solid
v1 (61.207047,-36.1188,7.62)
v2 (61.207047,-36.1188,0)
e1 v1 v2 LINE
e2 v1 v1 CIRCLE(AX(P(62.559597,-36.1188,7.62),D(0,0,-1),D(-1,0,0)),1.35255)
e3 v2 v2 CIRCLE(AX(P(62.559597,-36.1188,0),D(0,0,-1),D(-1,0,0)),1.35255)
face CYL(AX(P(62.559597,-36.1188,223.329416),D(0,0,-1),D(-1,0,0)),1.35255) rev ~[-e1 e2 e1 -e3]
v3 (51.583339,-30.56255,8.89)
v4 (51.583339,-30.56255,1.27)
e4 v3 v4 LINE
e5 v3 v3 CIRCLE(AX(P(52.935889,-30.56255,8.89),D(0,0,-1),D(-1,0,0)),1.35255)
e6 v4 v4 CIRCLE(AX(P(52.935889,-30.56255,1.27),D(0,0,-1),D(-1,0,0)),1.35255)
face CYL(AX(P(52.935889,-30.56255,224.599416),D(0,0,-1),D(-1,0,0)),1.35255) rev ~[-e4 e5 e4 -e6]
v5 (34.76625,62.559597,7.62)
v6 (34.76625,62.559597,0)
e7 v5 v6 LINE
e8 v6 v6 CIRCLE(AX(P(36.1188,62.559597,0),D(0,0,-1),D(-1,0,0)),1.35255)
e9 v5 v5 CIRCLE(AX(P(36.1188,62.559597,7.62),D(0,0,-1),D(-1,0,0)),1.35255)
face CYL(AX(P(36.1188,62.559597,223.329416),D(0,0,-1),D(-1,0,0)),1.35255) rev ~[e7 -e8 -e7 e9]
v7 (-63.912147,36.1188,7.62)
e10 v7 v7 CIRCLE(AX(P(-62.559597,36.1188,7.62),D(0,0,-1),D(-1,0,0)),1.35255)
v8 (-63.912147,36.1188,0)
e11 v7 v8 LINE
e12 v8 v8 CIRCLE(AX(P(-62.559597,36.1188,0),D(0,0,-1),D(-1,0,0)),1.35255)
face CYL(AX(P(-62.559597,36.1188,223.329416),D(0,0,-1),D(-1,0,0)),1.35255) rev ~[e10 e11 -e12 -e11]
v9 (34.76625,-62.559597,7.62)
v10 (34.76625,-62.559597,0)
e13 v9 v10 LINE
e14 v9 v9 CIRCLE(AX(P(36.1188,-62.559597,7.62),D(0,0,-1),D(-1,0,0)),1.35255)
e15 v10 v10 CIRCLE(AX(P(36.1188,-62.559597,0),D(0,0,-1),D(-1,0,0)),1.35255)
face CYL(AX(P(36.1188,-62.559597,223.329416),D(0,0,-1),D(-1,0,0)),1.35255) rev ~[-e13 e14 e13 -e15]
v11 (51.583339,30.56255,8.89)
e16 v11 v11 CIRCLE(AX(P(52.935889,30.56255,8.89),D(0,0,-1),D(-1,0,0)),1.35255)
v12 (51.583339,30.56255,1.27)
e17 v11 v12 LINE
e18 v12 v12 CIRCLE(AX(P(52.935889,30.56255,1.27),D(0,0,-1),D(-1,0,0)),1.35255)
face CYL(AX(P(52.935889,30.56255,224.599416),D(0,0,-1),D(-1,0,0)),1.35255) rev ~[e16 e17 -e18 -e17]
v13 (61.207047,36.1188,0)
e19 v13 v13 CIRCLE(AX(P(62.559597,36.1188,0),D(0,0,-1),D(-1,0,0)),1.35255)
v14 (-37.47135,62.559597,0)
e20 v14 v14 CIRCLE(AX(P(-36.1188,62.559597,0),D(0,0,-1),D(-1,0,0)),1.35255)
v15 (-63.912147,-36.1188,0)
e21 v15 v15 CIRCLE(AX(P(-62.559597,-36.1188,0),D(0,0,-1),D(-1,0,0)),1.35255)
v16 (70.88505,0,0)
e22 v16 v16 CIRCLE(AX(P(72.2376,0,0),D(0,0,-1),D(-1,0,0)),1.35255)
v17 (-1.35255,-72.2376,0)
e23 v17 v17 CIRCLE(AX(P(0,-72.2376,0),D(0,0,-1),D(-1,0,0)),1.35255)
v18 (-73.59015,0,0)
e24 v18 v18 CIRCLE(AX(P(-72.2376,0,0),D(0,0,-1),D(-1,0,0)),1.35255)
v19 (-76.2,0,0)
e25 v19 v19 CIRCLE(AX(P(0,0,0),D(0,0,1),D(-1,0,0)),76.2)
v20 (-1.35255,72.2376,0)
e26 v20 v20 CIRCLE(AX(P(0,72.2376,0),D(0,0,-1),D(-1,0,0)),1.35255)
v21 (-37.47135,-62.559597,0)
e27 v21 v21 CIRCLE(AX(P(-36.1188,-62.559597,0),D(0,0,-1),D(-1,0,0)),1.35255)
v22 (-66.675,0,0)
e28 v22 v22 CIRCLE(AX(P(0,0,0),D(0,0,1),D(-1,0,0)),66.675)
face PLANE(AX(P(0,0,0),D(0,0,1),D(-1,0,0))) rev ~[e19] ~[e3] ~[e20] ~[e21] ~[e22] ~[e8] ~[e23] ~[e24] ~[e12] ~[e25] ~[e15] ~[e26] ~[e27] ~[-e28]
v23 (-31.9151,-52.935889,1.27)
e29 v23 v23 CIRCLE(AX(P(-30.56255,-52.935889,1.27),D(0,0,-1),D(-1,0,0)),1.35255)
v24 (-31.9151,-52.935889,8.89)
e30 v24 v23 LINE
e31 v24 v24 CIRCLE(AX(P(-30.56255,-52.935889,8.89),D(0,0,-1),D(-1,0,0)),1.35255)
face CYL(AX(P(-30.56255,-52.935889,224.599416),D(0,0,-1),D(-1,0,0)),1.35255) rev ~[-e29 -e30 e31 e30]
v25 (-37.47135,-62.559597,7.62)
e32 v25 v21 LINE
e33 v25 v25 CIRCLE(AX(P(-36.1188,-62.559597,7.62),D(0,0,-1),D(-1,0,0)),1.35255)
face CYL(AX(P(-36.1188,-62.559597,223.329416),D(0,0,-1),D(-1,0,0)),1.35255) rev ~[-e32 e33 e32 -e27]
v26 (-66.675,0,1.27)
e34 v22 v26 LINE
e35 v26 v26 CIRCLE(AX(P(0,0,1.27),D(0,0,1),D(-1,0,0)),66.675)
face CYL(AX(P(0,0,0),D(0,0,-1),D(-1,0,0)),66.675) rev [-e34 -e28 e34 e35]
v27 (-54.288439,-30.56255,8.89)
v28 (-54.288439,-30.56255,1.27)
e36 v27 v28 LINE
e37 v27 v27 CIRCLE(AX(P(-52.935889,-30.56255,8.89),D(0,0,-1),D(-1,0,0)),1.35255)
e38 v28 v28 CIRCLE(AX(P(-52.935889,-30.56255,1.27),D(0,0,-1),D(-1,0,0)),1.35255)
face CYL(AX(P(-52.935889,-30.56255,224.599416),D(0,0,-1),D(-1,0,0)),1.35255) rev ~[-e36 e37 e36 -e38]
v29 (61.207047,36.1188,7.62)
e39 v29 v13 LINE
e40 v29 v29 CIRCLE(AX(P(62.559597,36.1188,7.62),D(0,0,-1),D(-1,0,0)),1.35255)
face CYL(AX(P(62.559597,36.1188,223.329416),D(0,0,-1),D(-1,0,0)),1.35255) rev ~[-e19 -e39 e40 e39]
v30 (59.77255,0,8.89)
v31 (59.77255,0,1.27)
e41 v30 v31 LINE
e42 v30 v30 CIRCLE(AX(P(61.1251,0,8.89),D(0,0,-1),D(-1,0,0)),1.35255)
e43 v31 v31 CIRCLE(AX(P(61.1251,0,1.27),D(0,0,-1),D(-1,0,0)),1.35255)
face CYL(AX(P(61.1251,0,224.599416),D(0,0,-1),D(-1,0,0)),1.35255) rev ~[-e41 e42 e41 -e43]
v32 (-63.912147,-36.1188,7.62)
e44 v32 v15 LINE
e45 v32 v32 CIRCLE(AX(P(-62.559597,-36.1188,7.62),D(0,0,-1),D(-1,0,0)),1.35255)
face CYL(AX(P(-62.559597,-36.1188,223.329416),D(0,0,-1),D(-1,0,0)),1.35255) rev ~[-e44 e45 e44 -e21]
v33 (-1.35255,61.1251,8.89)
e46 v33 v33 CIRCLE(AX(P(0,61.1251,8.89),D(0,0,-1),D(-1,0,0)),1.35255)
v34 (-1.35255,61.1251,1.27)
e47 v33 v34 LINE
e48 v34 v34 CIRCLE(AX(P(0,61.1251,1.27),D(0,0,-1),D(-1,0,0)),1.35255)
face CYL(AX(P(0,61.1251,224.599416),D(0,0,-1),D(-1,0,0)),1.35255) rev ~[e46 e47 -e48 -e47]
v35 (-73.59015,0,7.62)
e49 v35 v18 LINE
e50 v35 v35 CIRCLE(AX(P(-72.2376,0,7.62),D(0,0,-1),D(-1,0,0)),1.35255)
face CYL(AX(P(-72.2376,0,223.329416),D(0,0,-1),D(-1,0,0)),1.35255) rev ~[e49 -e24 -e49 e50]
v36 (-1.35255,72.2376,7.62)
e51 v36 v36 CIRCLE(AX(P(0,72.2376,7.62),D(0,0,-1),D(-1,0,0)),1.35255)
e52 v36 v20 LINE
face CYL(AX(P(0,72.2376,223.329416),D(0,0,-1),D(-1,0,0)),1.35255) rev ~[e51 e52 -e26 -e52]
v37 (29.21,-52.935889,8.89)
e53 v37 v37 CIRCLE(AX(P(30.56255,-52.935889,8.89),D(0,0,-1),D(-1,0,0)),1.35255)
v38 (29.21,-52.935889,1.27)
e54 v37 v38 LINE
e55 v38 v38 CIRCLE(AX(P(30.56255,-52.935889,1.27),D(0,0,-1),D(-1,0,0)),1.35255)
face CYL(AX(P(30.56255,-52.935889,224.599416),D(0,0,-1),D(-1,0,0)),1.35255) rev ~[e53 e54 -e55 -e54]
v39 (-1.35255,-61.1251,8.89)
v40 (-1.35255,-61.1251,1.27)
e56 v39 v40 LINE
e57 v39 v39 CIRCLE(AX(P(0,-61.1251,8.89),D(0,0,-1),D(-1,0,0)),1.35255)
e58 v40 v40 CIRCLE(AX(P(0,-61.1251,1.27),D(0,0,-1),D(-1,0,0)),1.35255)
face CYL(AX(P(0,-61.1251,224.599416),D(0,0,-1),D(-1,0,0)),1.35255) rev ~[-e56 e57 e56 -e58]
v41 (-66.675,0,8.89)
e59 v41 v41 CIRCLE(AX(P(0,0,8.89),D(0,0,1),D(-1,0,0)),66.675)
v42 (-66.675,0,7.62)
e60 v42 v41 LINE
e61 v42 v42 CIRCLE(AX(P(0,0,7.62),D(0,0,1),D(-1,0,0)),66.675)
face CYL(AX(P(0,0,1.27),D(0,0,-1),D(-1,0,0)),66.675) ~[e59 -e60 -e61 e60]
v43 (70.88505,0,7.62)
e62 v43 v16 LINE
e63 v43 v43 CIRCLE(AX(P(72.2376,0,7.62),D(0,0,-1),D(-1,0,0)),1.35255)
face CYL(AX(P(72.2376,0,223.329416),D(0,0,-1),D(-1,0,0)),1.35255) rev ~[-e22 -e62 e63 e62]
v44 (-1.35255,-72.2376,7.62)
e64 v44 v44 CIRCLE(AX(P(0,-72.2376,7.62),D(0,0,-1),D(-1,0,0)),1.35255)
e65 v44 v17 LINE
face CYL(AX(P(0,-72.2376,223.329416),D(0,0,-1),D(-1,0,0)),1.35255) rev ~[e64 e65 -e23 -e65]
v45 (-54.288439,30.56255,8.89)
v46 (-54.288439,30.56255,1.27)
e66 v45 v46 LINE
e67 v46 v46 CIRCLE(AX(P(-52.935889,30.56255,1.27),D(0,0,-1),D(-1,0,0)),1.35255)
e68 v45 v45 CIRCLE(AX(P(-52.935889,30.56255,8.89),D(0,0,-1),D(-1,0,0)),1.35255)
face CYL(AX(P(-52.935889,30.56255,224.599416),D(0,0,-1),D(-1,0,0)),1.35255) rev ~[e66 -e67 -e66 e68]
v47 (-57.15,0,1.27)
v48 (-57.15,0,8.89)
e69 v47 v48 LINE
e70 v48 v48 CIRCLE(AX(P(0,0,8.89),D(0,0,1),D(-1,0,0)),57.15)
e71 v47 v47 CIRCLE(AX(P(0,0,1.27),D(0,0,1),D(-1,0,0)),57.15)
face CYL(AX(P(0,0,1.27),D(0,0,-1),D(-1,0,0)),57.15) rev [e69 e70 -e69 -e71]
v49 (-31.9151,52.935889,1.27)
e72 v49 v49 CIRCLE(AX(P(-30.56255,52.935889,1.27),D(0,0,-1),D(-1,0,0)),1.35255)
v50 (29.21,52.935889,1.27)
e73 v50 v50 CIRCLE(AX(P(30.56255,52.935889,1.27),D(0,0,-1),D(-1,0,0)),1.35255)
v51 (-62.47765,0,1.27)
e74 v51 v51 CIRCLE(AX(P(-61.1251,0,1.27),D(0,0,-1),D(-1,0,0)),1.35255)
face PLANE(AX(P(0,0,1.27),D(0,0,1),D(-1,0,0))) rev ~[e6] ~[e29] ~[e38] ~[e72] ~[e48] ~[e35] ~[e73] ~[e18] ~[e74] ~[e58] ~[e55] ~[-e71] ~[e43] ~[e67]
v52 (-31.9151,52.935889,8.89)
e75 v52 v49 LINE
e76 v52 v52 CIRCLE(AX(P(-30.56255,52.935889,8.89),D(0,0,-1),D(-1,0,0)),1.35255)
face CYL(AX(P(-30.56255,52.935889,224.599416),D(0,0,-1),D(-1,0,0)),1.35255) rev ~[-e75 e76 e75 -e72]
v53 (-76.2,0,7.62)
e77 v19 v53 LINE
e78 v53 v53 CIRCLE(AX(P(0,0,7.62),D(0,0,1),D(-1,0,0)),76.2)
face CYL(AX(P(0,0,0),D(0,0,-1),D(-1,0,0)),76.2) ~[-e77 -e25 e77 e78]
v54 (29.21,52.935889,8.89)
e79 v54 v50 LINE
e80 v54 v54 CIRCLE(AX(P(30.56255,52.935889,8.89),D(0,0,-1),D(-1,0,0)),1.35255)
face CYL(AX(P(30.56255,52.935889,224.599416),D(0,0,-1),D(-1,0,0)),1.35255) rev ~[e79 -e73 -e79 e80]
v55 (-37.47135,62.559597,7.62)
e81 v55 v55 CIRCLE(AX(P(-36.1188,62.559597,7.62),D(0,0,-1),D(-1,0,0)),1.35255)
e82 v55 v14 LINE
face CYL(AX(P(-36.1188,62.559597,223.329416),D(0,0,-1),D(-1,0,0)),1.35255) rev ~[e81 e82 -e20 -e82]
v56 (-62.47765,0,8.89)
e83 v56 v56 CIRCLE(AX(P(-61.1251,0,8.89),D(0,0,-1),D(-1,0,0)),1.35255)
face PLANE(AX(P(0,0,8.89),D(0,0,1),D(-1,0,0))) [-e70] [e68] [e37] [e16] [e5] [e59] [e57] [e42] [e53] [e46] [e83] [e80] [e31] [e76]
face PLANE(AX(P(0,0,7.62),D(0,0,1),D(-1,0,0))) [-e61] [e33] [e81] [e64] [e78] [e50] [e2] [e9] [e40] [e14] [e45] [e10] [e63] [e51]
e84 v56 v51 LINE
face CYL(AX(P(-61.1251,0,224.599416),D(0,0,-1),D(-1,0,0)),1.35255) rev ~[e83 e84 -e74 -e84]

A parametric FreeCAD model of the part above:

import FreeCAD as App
import Part
import Sketcher
from FreeCAD import Vector
Q = App.Units.Quantity

doc = App.newDocument("Part")
body = doc.addObject("PartDesign::Body", "Body")

# Sketch on XY plane
sketch1 = body.newObject("Sketcher::SketchObject", "Sketch")
sketch1.AttachmentSupport = (doc.getObject("XY_Plane"), [""])
sketch1.MapMode = "FlatFace"
sketch1.addGeometry(Part.Circle(Vector(0, 0, 0), Vector(0, 0, 1), 76), False)
sketch1.addGeometry(Part.Circle(Vector(0, 0, 0), Vector(0, 0, 1), 67), False)
sketch1.addConstraint(Sketcher.Constraint("Coincident", 0, 3, -1, 1))
sketch1.addConstraint(Sketcher.Constraint("Coincident", 1, 3, -1, 1))
sketch1.addConstraint(Sketcher.Constraint("Diameter", 0, Q("6 in")))
sketch1.addConstraint(Sketcher.Constraint("Diameter", 1, Q("5.25 in")))
pad1 = body.newObject("PartDesign::Pad", "Pad")
pad1.Profile = sketch1
pad1.Length = Q("0.3 in")

# Sketch on XY plane
sketch2 = body.newObject("Sketcher::SketchObject", "Sketch001")
sketch2.AttachmentSupport = (doc.getObject("XY_Plane"), [""])
sketch2.MapMode = "FlatFace"
sketch2.AttachmentOffset = App.Placement(Vector(0, 0, 0.05 * 25.4), App.Rotation())
sketch2.addGeometry(Part.Circle(Vector(0, 0, 0), Vector(0, 0, 1), 67), False)
sketch2.addGeometry(Part.Circle(Vector(0, 0, 0), Vector(0, 0, 1), 57), False)
sketch2.addConstraint(Sketcher.Constraint("Coincident", 0, 3, -1, 1))
sketch2.addConstraint(Sketcher.Constraint("Coincident", 1, 3, -1, 1))
sketch2.addConstraint(Sketcher.Constraint("Diameter", 1, Q("4.5 in")))
sketch2.addConstraint(Sketcher.Constraint("Diameter", 0, Q("5.25 in")))
pad2 = body.newObject("PartDesign::Pad", "Pad001")
pad2.Profile = sketch2
pad2.Length = Q("0.3 in")

# Sketch on XY plane
sketch3 = body.newObject("Sketcher::SketchObject", "Sketch002")
sketch3.AttachmentSupport = (doc.getObject("XY_Plane"), [""])
sketch3.MapMode = "FlatFace"
sketch3.AttachmentOffset = App.Placement(Vector(0, 0, 0.35 * 25.4), App.Rotation())
sketch3.addGeometry(Part.Circle(Vector(-30.6, 52.9, 0), Vector(0, 0, 1), 1.4), False)
sketch3.addGeometry(Part.Circle(Vector(-52.9, 30.6, 0), Vector(0, 0, 1), 1.4), False)
sketch3.addGeometry(Part.Circle(Vector(-61.1, 0, 0), Vector(0, 0, 1), 1.4), False)
sketch3.addGeometry(Part.Circle(Vector(-52.9, -30.6, 0), Vector(0, 0, 1), 1.4), False)
sketch3.addGeometry(Part.Circle(Vector(-30.6, -52.9, 0), Vector(0, 0, 1), 1.4), False)
sketch3.addGeometry(Part.Circle(Vector(0, -61.1, 0), Vector(0, 0, 1), 1.4), False)
sketch3.addGeometry(Part.Circle(Vector(30.6, -52.9, 0), Vector(0, 0, 1), 1.4), False)
sketch3.addGeometry(Part.Circle(Vector(52.9, -30.6, 0), Vector(0, 0, 1), 1.4), False)
sketch3.addGeometry(Part.Circle(Vector(61.1, 0, 0), Vector(0, 0, 1), 1.4), False)
sketch3.addGeometry(Part.Circle(Vector(52.9, 30.6, 0), Vector(0, 0, 1), 1.4), False)
sketch3.addGeometry(Part.Circle(Vector(30.6, 52.9, 0), Vector(0, 0, 1), 1.4), False)
sketch3.addGeometry(Part.Circle(Vector(0, 61.1, 0), Vector(0, 0, 1), 1.4), False)
sketch3.addConstraint(Sketcher.Constraint("Equal", 0, 1))
sketch3.addConstraint(Sketcher.Constraint("Equal", 1, 2))
sketch3.addConstraint(Sketcher.Constraint("Equal", 2, 3))
sketch3.addConstraint(Sketcher.Constraint("Equal", 3, 4))
sketch3.addConstraint(Sketcher.Constraint("Equal", 4, 5))
sketch3.addConstraint(Sketcher.Constraint("Equal", 5, 6))
sketch3.addConstraint(Sketcher.Constraint("Equal", 6, 7))
sketch3.addConstraint(Sketcher.Constraint("Equal", 7, 8))
sketch3.addConstraint(Sketcher.Constraint("Equal", 8, 9))
sketch3.addConstraint(Sketcher.Constraint("Equal", 9, 10))
sketch3.addConstraint(Sketcher.Constraint("Equal", 10, 11))
sketch3.addConstraint(Sketcher.Constraint("Symmetric", 0, 3, 6, 3, -1, 1))
sketch3.addConstraint(Sketcher.Constraint("Symmetric", 1, 3, 7, 3, -1, 1))
sketch3.addConstraint(Sketcher.Constraint("Symmetric", 2, 3, 8, 3, -1, 1))
sketch3.addConstraint(Sketcher.Constraint("Symmetric", 3, 3, 9, 3, -1, 1))
sketch3.addConstraint(Sketcher.Constraint("Symmetric", 4, 3, 10, 3, -1, 1))
sketch3.addConstraint(Sketcher.Constraint("Symmetric", 5, 3, 11, 3, -1, 1))
sketch3.addConstraint(Sketcher.Constraint("Symmetric", 4, 3, 6, 3, -2))
sketch3.addConstraint(Sketcher.Constraint("Symmetric", 3, 3, 7, 3, -2))
sketch3.addConstraint(Sketcher.Constraint("PointOnObject", 2, 3, -1))
sketch3.addConstraint(Sketcher.Constraint("PointOnObject", 5, 3, -2))
sketch3.addConstraint(Sketcher.Constraint("Diameter", 0, Q("0.1065 in")))
sketch3.addConstraint(Sketcher.Constraint("DistanceX", 2, 3, -1, 1, Q("2.4065 in")))
sketch3.addConstraint(Sketcher.Constraint("DistanceY", 5, 3, -1, 1, Q("2.4065 in")))
sketch3.addConstraint(Sketcher.Constraint("DistanceY", 3, 3, 1, 3, Q("2.4065 in")))
sketch3.addConstraint(Sketcher.Constraint("DistanceX", 4, 3, 6, 3, Q("2.4065 in")))
sketch3.addConstraint(Sketcher.Constraint("DistanceY", -1, 1, 0, 3, 52.935889))
sketch3.addConstraint(Sketcher.Constraint("DistanceX", 1, 3, -1, 1, 52.935889))
doc.recompute()
hole = body.newObject("PartDesign::Hole", "Hole")
hole.Profile = sketch3
hole.ThreadType = "None"
hole.Diameter = Q("0.1065 in")
hole.DepthType = "ThroughAll"

# Sketch on XY plane
sketch4 = body.newObject("Sketcher::SketchObject", "Sketch003")
sketch4.AttachmentSupport = (doc.getObject("XY_Plane"), [""])
sketch4.MapMode = "FlatFace"
sketch4.AttachmentOffset = App.Placement(Vector(0, 0, 0.3 * 25.4), App.Rotation())
sketch4.addGeometry(Part.Circle(Vector(0, 72.2, 0), Vector(0, 0, 1), 1.4), False)
sketch4.addGeometry(Part.Circle(Vector(-36.1, 62.6, 0), Vector(0, 0, 1), 1.4), False)
sketch4.addGeometry(Part.Circle(Vector(-62.6, 36.1, 0), Vector(0, 0, 1), 1.4), False)
sketch4.addGeometry(Part.Circle(Vector(-72.2, 0, 0), Vector(0, 0, 1), 1.4), False)
sketch4.addGeometry(Part.Circle(Vector(-62.6, -36.1, 0), Vector(0, 0, 1), 1.4), False)
sketch4.addGeometry(Part.Circle(Vector(-36.1, -62.6, 0), Vector(0, 0, 1), 1.4), False)
sketch4.addGeometry(Part.Circle(Vector(0, -72.2, 0), Vector(0, 0, 1), 1.4), False)
sketch4.addGeometry(Part.Circle(Vector(36.1, -62.6, 0), Vector(0, 0, 1), 1.4), False)
sketch4.addGeometry(Part.Circle(Vector(62.6, -36.1, 0), Vector(0, 0, 1), 1.4), False)
sketch4.addGeometry(Part.Circle(Vector(72.2, 0, 0), Vector(0, 0, 1), 1.4), False)
sketch4.addGeometry(Part.Circle(Vector(62.6, 36.1, 0), Vector(0, 0, 1), 1.4), False)
sketch4.addGeometry(Part.Circle(Vector(36.1, 62.6, 0), Vector(0, 0, 1), 1.4), False)
sketch4.addConstraint(Sketcher.Constraint("Equal", 0, 1))
sketch4.addConstraint(Sketcher.Constraint("Equal", 1, 2))
sketch4.addConstraint(Sketcher.Constraint("Equal", 2, 3))
sketch4.addConstraint(Sketcher.Constraint("Equal", 3, 4))
sketch4.addConstraint(Sketcher.Constraint("Equal", 4, 5))
sketch4.addConstraint(Sketcher.Constraint("Equal", 5, 6))
sketch4.addConstraint(Sketcher.Constraint("Equal", 6, 7))
sketch4.addConstraint(Sketcher.Constraint("Equal", 7, 8))
sketch4.addConstraint(Sketcher.Constraint("Equal", 8, 9))
sketch4.addConstraint(Sketcher.Constraint("Equal", 9, 10))
sketch4.addConstraint(Sketcher.Constraint("Equal", 10, 11))
sketch4.addConstraint(Sketcher.Constraint("Symmetric", 0, 3, 6, 3, -1, 1))
sketch4.addConstraint(Sketcher.Constraint("Symmetric", 1, 3, 7, 3, -1, 1))
sketch4.addConstraint(Sketcher.Constraint("Symmetric", 2, 3, 8, 3, -1, 1))
sketch4.addConstraint(Sketcher.Constraint("Symmetric", 3, 3, 9, 3, -1, 1))
sketch4.addConstraint(Sketcher.Constraint("Symmetric", 4, 3, 10, 3, -1, 1))
sketch4.addConstraint(Sketcher.Constraint("Symmetric", 5, 3, 11, 3, -1, 1))
sketch4.addConstraint(Sketcher.Constraint("Symmetric", 5, 3, 7, 3, -2))
sketch4.addConstraint(Sketcher.Constraint("Symmetric", 4, 3, 8, 3, -2))
sketch4.addConstraint(Sketcher.Constraint("PointOnObject", 0, 3, -2))
sketch4.addConstraint(Sketcher.Constraint("PointOnObject", 3, 3, -1))
sketch4.addConstraint(Sketcher.Constraint("Diameter", 0, Q("0.1065 in")))
sketch4.addConstraint(Sketcher.Constraint("DistanceY", -1, 1, 0, 3, Q("2.844 in")))
sketch4.addConstraint(Sketcher.Constraint("DistanceX", 1, 3, -1, 1, Q("1.422 in")))
sketch4.addConstraint(Sketcher.Constraint("DistanceY", -1, 1, 2, 3, Q("1.422 in")))
sketch4.addConstraint(Sketcher.Constraint("DistanceX", 3, 3, -1, 1, Q("2.844 in")))
sketch4.addConstraint(Sketcher.Constraint("DistanceY", -1, 1, 1, 3, 62.559597))
sketch4.addConstraint(Sketcher.Constraint("DistanceX", 2, 3, -1, 1, 62.559597))
doc.recompute()
hole2 = body.newObject("PartDesign::Hole", "Hole001")
hole2.Profile = sketch4
hole2.ThreadType = "None"
hole2.Diameter = Q("0.1065 in")
hole2.DepthType = "ThroughAll"

doc.recompute()
